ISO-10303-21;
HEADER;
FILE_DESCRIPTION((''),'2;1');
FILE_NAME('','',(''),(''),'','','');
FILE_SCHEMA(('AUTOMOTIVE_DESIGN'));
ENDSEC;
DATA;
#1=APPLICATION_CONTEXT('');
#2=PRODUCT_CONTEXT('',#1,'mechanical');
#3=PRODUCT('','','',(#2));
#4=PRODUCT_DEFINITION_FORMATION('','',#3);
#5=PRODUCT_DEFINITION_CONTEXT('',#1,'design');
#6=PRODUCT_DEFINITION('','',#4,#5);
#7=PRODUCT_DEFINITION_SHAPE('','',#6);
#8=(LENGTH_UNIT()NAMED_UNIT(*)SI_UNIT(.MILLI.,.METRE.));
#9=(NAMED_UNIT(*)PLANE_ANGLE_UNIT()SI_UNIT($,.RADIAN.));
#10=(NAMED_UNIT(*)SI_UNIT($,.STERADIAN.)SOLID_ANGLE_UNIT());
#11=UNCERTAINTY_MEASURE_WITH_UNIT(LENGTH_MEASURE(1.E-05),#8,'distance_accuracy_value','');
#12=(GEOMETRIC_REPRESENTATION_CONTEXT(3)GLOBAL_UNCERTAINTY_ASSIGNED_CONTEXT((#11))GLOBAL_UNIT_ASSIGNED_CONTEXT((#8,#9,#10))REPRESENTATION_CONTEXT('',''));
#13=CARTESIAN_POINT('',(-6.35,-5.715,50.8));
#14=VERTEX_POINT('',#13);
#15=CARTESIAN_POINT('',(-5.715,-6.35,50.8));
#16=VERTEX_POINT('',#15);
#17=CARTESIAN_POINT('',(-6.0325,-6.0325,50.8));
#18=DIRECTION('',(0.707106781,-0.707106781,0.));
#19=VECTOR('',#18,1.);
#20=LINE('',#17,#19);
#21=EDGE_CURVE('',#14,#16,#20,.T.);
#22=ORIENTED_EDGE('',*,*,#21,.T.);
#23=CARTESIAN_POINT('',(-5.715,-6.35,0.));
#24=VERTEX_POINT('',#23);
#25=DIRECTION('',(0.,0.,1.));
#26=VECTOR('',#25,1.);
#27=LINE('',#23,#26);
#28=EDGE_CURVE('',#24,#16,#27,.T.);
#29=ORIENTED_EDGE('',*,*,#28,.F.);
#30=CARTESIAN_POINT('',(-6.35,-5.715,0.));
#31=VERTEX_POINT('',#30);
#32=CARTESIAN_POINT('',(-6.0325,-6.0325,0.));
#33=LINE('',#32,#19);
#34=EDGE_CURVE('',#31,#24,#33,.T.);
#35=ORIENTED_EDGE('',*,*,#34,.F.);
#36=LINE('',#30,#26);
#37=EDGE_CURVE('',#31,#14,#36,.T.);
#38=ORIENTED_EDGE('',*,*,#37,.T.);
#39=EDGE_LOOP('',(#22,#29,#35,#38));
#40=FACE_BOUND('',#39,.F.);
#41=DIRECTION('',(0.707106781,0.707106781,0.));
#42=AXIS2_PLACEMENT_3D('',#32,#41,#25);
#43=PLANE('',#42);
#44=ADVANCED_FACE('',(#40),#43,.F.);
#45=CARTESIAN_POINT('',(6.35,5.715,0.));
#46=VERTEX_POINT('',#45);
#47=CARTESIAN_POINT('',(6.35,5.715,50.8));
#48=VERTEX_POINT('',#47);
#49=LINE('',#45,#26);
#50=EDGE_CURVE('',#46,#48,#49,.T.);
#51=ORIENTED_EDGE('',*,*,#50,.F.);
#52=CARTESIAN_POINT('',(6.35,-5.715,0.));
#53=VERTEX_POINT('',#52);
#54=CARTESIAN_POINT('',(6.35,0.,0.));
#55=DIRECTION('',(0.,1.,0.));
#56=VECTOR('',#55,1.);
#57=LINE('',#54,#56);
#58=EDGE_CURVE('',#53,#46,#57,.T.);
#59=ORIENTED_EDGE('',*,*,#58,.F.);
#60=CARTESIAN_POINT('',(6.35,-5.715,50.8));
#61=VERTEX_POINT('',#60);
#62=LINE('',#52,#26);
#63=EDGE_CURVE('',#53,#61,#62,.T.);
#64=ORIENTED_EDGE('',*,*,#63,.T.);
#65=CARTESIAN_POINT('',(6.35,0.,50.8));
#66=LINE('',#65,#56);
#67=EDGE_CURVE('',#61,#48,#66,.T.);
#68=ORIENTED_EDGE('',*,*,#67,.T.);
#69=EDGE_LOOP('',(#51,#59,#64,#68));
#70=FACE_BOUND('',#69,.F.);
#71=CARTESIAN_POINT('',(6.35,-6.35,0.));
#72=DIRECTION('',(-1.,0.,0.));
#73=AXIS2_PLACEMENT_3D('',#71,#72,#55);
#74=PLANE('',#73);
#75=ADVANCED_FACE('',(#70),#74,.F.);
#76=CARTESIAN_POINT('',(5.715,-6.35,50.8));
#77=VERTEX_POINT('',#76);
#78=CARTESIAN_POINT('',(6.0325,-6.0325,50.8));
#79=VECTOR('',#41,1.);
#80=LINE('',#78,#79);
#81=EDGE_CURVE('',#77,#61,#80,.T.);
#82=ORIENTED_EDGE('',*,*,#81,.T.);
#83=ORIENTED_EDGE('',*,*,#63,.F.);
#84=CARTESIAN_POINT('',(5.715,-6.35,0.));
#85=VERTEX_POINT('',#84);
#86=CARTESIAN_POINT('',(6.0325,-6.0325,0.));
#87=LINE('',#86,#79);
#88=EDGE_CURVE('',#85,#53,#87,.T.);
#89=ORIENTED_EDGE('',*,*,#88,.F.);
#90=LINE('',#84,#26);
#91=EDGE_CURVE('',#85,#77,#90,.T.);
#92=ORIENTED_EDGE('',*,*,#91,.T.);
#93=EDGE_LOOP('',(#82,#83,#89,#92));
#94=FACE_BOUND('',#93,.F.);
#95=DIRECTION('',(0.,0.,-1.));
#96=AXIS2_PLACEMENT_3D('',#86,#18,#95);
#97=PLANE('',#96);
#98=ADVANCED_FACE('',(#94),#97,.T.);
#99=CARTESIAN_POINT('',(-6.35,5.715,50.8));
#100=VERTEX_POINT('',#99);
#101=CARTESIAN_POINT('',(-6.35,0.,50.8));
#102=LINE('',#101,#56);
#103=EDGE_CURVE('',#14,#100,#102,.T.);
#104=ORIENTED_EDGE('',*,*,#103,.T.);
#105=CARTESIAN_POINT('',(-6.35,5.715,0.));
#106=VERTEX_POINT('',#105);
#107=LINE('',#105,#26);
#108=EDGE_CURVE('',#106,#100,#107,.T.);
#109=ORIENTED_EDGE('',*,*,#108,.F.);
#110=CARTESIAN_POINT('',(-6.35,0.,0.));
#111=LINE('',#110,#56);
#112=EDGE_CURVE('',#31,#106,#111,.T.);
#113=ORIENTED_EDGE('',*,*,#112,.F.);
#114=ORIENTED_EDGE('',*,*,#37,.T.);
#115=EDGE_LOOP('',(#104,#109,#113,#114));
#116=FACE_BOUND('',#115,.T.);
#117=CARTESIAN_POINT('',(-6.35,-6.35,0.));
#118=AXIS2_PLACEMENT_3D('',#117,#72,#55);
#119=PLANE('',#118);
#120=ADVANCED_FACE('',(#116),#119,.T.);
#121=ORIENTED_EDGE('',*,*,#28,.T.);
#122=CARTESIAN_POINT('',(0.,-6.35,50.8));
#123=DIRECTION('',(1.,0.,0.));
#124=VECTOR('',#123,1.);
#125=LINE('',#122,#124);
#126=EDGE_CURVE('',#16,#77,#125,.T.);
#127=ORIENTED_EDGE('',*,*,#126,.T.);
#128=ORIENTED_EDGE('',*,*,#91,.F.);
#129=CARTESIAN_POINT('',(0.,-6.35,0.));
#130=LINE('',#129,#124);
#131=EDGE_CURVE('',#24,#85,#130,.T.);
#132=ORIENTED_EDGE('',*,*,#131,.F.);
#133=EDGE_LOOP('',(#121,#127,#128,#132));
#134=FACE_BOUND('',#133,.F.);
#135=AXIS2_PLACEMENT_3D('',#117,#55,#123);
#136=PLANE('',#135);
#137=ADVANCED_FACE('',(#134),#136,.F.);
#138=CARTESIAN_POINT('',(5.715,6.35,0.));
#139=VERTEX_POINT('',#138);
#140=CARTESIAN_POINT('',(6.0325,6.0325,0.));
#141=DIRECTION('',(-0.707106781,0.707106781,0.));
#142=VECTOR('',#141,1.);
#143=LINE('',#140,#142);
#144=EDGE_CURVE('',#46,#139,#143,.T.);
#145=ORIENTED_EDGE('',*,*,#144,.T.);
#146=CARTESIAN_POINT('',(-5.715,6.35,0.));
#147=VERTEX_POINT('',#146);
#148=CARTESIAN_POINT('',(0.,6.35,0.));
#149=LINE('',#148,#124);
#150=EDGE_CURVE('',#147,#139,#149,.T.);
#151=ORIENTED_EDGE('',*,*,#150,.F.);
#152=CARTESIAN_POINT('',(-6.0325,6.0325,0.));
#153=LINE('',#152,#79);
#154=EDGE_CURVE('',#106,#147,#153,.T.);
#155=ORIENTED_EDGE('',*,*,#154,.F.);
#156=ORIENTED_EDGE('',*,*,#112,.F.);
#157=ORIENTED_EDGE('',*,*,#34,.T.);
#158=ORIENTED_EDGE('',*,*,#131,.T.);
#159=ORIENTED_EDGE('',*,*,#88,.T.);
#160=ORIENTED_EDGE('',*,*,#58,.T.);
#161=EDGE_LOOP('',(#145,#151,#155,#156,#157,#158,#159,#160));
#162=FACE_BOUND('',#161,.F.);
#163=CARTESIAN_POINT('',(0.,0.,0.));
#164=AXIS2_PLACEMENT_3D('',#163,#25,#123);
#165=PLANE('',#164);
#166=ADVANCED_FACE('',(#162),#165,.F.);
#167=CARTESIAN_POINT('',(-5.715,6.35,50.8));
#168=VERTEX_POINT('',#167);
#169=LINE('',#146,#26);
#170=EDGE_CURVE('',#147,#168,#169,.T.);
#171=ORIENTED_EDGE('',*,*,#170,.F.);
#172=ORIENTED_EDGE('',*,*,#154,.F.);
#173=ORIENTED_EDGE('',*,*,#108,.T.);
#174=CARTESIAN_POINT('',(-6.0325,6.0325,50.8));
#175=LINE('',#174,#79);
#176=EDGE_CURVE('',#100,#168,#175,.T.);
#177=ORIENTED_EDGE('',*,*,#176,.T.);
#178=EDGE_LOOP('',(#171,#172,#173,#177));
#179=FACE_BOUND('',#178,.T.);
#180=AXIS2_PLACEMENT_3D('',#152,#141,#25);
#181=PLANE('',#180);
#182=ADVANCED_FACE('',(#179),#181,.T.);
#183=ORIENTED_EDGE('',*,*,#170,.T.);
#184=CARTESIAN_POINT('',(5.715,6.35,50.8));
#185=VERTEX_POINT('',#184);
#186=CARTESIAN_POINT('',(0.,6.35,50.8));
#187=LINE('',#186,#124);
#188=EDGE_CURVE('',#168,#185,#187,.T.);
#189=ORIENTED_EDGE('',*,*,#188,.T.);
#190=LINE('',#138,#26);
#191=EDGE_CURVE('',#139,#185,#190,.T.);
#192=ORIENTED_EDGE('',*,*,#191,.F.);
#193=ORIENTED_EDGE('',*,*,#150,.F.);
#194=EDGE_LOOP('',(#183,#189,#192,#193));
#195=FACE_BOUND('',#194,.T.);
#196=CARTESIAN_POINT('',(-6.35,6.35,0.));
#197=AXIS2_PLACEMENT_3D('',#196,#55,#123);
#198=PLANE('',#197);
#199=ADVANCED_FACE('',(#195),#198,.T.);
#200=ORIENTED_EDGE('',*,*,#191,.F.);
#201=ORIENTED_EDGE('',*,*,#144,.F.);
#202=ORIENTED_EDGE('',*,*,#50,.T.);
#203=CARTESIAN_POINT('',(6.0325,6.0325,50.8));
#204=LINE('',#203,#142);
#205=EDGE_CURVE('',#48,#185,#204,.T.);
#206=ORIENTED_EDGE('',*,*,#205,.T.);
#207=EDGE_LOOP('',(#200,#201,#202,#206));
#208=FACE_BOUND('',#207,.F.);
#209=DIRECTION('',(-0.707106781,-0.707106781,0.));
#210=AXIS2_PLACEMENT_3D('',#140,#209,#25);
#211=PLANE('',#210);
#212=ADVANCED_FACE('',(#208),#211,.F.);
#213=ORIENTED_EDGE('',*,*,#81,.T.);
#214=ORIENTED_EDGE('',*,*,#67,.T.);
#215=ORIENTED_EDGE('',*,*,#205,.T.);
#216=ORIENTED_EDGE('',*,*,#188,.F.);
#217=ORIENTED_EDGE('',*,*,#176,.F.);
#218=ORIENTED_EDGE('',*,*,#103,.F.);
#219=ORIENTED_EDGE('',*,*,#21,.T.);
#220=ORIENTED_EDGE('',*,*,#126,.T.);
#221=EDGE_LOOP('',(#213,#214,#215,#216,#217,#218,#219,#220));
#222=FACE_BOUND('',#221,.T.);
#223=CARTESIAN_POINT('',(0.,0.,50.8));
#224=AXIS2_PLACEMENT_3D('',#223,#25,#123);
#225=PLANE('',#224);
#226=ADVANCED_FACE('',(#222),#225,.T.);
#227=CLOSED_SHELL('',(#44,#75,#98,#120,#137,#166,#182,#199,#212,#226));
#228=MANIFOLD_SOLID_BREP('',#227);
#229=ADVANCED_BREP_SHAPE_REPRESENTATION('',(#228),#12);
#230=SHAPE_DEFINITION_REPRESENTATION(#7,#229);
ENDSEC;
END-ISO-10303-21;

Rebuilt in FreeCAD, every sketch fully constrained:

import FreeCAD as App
import Part
import Sketcher
from FreeCAD import Vector
Q = App.Units.Quantity


def edges_at(feature, points):
    """Names of the edges that pass closest to the given points."""
    edges = feature.Shape.Edges
    near = lambda p: min(range(len(edges)), key=lambda i: edges[i].distToShape(Part.Vertex(*p))[0])
    return sorted({f"Edge{near(p) + 1}" for p in points})


def add_polygon(sketch, points):
    """Adds a closed chain of lines whose ends are joined by coincident constraints."""
    first, n = sketch.GeometryCount, len(points)
    for a, b in zip(points, points[1:] + points[:1]):
        sketch.addGeometry(Part.LineSegment(App.Vector(*a, 0), App.Vector(*b, 0)), False)
    for i in range(n):
        sketch.addConstraint(Sketcher.Constraint("Coincident", first + i, 2, first + (i + 1) % n, 1))

doc = App.newDocument("Part")
params = doc.addObject("Spreadsheet::Sheet", "Params")
for row, (alias, value) in enumerate([
    ("sketch1_width", "0.5 in"),
    ("pad1_length", "2 in"),
    ("chamfer_size", "0.025 in"),
], start=1):
    params.set(f"A{row}", alias)
    params.set(f"B{row}", "=" + value)
    params.setAlias(f"B{row}", alias)

body = doc.addObject("PartDesign::Body", "Body")

sketch1 = body.newObject("Sketcher::SketchObject", "Sketch")
sketch1.AttachmentSupport = (doc.getObject("XY_Plane"), [""])
sketch1.MapMode = "FlatFace"
add_polygon(sketch1, [(-6, 6), (-6, -6), (6, -6), (6, 6)])
sketch1.addConstraint([
    Sketcher.Constraint("Vertical", 0),
    Sketcher.Constraint("Horizontal", 1),
    Sketcher.Constraint("Vertical", 2),
    Sketcher.Constraint("Horizontal", 3),
    Sketcher.Constraint("Symmetric", 0, 2, 2, 2, -1, 1),
    Sketcher.Constraint("Equal", 3, 0),
    Sketcher.Constraint("DistanceX", 1, 1, 1, 2, Q("0.5 in")),
])
sketch1.setExpression("Constraints[10]", "Params.sketch1_width")
pad1 = body.newObject("PartDesign::Pad", "Pad")
pad1.Profile = sketch1
pad1.setExpression("Length", "Params.pad1_length")
doc.recompute()

chamfer = body.newObject("PartDesign::Chamfer", "Chamfer")
chamfer.Base = (pad1, edges_at(pad1, [
    (-6.35, 6.35, 25.4),
    (-6.35, -6.35, 25.4),
    (6.35, 6.35, 25.4),
    (6.35, -6.35, 25.4),
]))
chamfer.setExpression("Size", "Params.chamfer_size")

doc.recompute()
